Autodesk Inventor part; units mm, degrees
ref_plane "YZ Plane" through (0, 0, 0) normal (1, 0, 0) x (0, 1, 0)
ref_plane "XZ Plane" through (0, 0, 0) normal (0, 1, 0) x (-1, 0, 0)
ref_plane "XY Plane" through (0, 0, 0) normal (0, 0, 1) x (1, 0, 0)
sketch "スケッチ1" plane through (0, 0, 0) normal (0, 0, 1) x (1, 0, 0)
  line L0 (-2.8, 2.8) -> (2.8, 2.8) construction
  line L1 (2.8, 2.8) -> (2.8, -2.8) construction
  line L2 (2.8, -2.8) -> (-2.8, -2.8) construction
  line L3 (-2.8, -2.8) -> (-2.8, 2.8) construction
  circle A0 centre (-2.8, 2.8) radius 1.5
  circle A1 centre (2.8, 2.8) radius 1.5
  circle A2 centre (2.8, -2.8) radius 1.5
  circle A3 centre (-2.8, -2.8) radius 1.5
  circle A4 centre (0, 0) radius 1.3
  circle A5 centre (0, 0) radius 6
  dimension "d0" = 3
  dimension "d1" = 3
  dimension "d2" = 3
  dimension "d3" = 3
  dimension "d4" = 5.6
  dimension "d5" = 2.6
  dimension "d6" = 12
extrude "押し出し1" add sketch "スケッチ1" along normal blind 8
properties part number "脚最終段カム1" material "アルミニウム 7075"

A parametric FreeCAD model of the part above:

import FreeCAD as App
import Part
import Sketcher

V = App.Vector

doc = App.newDocument("Part")
params = doc.addObject("Spreadsheet::Sheet", "Params")
for row, (alias, value) in enumerate([
    ("sketch1_diameter", "12 mm"),
    ("sketch1_diameter2", "3 mm"),
    ("sketch1_diameter3", "2.6 mm"),
    ("pad1_length", "8 mm"),
], start=1):
    params.set(f"A{row}", alias)
    params.set(f"B{row}", "=" + value)
    params.setAlias(f"B{row}", alias)

body = doc.addObject("PartDesign::Body", "Body")

# Sketch on XY plane
sketch1 = body.newObject("Sketcher::SketchObject", "Sketch")
sketch1.AttachmentSupport = (doc.getObject("XY_Plane"), [""])
sketch1.MapMode = "FlatFace"
sketch1.addGeometry([
    Part.Circle(V(0, 0, 0), V(0, 0, 1), 6),  # 0
    Part.Circle(V(-2.8, -2.8, 0), V(0, 0, 1), 1.5),  # 1
    Part.Circle(V(2.8, -2.8, 0), V(0, 0, 1), 1.5),  # 2
    Part.Circle(V(-2.8, 2.8, 0), V(0, 0, 1), 1.5),  # 3
    Part.Circle(V(0, 0, 0), V(0, 0, 1), 1.3),  # 4
    Part.Circle(V(2.8, 2.8, 0), V(0, 0, 1), 1.5),  # 5
], False)
sketch1.addConstraint([
    Sketcher.Constraint("Coincident", 0, 3, -1, 1),
    Sketcher.Constraint("Coincident", 4, 3, -1, 1),
    Sketcher.Constraint("Equal", 1, 2),
    Sketcher.Constraint("Equal", 2, 3),
    Sketcher.Constraint("Equal", 3, 5),
    Sketcher.Constraint("Symmetric", 2, 3, 3, 3, -1, 1),
    Sketcher.Constraint("Symmetric", 1, 3, 5, 3, -1, 1),
    Sketcher.Constraint("Symmetric", 1, 3, 2, 3, -2),
    Sketcher.Constraint("Diameter", 0, 12.0),
    Sketcher.Constraint("Diameter", 1, 3.0),
    Sketcher.Constraint("Diameter", 4, 2.6),
    Sketcher.Constraint("DistanceX", 1, 3, 2, 3, 5.6),
    Sketcher.Constraint("DistanceY", 1, 3, 3, 3, 5.6),
])
sketch1.setExpression("Constraints[8]", "Params.sketch1_diameter")
sketch1.setExpression("Constraints[9]", "Params.sketch1_diameter2")
sketch1.setExpression("Constraints[10]", "Params.sketch1_diameter3")
pad1 = body.newObject("PartDesign::Pad", "Pad")
pad1.Profile = sketch1
pad1.setExpression("Length", "Params.pad1_length")

doc.recompute()
